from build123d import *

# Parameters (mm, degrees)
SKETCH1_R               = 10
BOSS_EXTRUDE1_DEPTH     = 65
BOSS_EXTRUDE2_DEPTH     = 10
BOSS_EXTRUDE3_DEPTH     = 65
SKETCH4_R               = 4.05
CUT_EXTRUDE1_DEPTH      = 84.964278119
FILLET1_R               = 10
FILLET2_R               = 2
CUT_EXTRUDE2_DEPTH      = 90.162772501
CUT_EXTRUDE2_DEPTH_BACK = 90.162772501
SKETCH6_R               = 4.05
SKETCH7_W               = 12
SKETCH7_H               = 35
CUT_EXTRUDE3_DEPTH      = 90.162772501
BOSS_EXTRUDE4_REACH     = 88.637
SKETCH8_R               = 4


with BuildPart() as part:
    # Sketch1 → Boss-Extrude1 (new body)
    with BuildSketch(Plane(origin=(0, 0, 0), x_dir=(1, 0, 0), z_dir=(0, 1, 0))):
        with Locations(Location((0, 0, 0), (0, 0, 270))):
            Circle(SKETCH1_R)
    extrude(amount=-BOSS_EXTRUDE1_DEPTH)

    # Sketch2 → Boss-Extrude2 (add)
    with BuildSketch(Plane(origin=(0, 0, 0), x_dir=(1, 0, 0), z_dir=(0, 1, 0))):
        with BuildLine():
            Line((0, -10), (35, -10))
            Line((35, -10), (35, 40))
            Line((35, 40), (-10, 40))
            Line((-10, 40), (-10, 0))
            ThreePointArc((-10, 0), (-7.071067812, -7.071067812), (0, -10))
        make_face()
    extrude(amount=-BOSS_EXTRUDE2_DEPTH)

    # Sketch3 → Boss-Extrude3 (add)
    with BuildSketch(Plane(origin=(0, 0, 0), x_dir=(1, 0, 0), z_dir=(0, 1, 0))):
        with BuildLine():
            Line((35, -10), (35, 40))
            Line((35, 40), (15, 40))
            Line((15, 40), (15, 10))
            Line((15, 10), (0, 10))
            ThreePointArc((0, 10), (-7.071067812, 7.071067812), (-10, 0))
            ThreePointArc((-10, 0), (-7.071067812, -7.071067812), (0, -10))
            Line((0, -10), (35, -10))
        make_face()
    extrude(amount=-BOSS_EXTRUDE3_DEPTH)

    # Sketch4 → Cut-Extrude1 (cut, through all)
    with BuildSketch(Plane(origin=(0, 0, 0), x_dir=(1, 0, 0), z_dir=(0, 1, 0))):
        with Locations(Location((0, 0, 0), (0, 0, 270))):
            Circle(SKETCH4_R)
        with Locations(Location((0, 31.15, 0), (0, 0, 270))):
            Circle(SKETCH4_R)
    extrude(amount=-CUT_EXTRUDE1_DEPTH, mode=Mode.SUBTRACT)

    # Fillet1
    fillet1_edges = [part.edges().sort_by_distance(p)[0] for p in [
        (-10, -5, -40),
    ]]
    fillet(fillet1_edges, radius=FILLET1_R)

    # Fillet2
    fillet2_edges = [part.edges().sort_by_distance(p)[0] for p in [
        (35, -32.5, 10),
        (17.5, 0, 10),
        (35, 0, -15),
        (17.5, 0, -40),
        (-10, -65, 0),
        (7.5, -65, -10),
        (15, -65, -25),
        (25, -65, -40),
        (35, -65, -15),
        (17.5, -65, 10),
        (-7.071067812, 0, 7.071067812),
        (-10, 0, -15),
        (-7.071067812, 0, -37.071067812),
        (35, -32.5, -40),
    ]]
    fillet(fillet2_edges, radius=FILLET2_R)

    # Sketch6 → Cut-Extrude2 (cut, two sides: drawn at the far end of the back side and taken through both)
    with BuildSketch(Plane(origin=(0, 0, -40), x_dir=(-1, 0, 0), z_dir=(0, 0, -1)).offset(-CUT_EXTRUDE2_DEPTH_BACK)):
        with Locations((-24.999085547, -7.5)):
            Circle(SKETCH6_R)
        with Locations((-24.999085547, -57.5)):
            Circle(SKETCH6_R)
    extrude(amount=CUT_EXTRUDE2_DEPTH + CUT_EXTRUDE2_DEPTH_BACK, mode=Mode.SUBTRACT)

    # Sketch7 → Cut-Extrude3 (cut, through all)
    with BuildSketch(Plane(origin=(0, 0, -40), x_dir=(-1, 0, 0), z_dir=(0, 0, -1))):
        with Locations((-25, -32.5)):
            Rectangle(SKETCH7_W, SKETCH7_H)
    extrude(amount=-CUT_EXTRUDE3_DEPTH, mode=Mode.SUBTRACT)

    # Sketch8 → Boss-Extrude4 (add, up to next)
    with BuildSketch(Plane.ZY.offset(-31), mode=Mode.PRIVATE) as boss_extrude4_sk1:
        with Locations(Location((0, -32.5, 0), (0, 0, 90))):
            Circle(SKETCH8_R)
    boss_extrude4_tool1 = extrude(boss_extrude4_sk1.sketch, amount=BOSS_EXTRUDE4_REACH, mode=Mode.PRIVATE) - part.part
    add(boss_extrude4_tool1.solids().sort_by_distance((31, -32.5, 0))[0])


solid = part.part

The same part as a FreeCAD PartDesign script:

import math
import FreeCAD as App
import Part
import Sketcher

V = App.Vector
Q = App.Units.Quantity


def edges_at(feature, points):
    """Names of the edges that pass closest to the given points."""
    edges = feature.Shape.Edges
    near = lambda p: min(range(len(edges)), key=lambda i: edges[i].distToShape(Part.Vertex(*p))[0])
    return sorted({f"Edge{near(p) + 1}" for p in points})


def add_polygon(sketch, points):
    """Adds a closed chain of lines whose ends are joined by coincident constraints."""
    first, n = sketch.GeometryCount, len(points)
    for a, b in zip(points, points[1:] + points[:1]):
        sketch.addGeometry(Part.LineSegment(App.Vector(*a, 0), App.Vector(*b, 0)), False)
    for i in range(n):
        sketch.addConstraint(Sketcher.Constraint("Coincident", first + i, 2, first + (i + 1) % n, 1))

doc = App.newDocument("Part")
body = doc.addObject("PartDesign::Body", "Body")

sketch1 = doc.addObject("Sketcher::SketchObject", "Sketch")
body.addObject(sketch1)
sketch1.AttachmentSupport = (doc.XZ_Plane, [""])
sketch1.MapMode = "FlatFace"
sketch1.addGeometry(Part.Circle(V(0, 0, 0), V(0, 0, 1), 10), False)
sketch1.addConstraint(Sketcher.Constraint("Coincident", 0, 3, -1, 1))
sketch1.addConstraint(Sketcher.Constraint("Diameter", 0, Q("20 mm")))
pad1 = doc.addObject("PartDesign::Pad", "Pad")
body.addObject(pad1)
pad1.Profile = sketch1
pad1.Length = 65

sketch2 = doc.addObject("Sketcher::SketchObject", "Sketch001")
body.addObject(sketch2)
sketch2.AttachmentSupport = (doc.XZ_Plane, [""])
sketch2.MapMode = "FlatFace"
sketch2.addGeometry(Part.LineSegment(V(0, 10, 0), V(35, 10, 0)), False)
sketch2.addGeometry(Part.LineSegment(V(35, 10, 0), V(35, -40, 0)), False)
sketch2.addGeometry(Part.LineSegment(V(35, -40, 0), V(-10, -40, 0)), False)
sketch2.addGeometry(Part.LineSegment(V(-10, -40, 0), V(-10, 0, 0)), False)
sketch2.addGeometry(Part.ArcOfCircle(Part.Circle(V(0, 0, 0), V(0, 0, 1), 10), math.radians(90), math.radians(180)), False)
sketch2.addConstraint(Sketcher.Constraint("Coincident", 0, 2, 1, 1))
sketch2.addConstraint(Sketcher.Constraint("Coincident", 1, 2, 2, 1))
sketch2.addConstraint(Sketcher.Constraint("Coincident", 2, 2, 3, 1))
sketch2.addConstraint(Sketcher.Constraint("Tangent", 3, 2, 4, 2))
sketch2.addConstraint(Sketcher.Constraint("Tangent", 4, 1, 0, 1))
sketch2.addConstraint(Sketcher.Constraint("Horizontal", 0))
sketch2.addConstraint(Sketcher.Constraint("Vertical", 1))
sketch2.addConstraint(Sketcher.Constraint("Horizontal", 2))
sketch2.addConstraint(Sketcher.Constraint("Vertical", 3))
sketch2.addConstraint(Sketcher.Constraint("Coincident", 4, 3, -1, 1))
sketch2.addConstraint(Sketcher.Constraint("Radius", 4, Q("10 mm")))
sketch2.addConstraint(Sketcher.Constraint("DistanceX", 0, 1, 0, 2, Q("35 mm")))
sketch2.addConstraint(Sketcher.Constraint("DistanceY", 1, 2, 1, 1, Q("50 mm")))
pad2 = doc.addObject("PartDesign::Pad", "Pad001")
body.addObject(pad2)
pad2.Profile = sketch2
pad2.Length = 10

sketch3 = doc.addObject("Sketcher::SketchObject", "Sketch002")
body.addObject(sketch3)
sketch3.AttachmentSupport = (doc.XZ_Plane, [""])
sketch3.MapMode = "FlatFace"
sketch3.addGeometry(Part.LineSegment(V(35, 10, 0), V(35, -40, 0)), False)
sketch3.addGeometry(Part.LineSegment(V(35, -40, 0), V(15, -40, 0)), False)
sketch3.addGeometry(Part.LineSegment(V(15, -40, 0), V(15, -10, 0)), False)
sketch3.addGeometry(Part.LineSegment(V(15, -10, 0), V(0, -10, 0)), False)
sketch3.addGeometry(Part.ArcOfCircle(Part.Circle(V(0, 0, 0), V(0, 0, 1), 10), math.radians(180), math.radians(270)), False)
sketch3.addGeometry(Part.ArcOfCircle(Part.Circle(V(0, 0, 0), V(0, 0, 1), 10), math.radians(90), math.radians(180)), False)
sketch3.addGeometry(Part.LineSegment(V(0, 10, 0), V(35, 10, 0)), False)
sketch3.addConstraint(Sketcher.Constraint("Coincident", 0, 2, 1, 1))
sketch3.addConstraint(Sketcher.Constraint("Coincident", 1, 2, 2, 1))
sketch3.addConstraint(Sketcher.Constraint("Coincident", 2, 2, 3, 1))
sketch3.addConstraint(Sketcher.Constraint("Tangent", 3, 2, 4, 2))
sketch3.addConstraint(Sketcher.Constraint("Tangent", 4, 1, 5, 2))
sketch3.addConstraint(Sketcher.Constraint("Tangent", 5, 1, 6, 1))
sketch3.addConstraint(Sketcher.Constraint("Coincident", 6, 2, 0, 1))
sketch3.addConstraint(Sketcher.Constraint("Vertical", 0))
sketch3.addConstraint(Sketcher.Constraint("Horizontal", 1))
sketch3.addConstraint(Sketcher.Constraint("Vertical", 2))
sketch3.addConstraint(Sketcher.Constraint("Horizontal", 3))
sketch3.addConstraint(Sketcher.Constraint("Horizontal", 6))
sketch3.addConstraint(Sketcher.Constraint("Coincident", 4, 3, -1, 1))
sketch3.addConstraint(Sketcher.Constraint("Equal", 4, 5))
sketch3.addConstraint(Sketcher.Constraint("PointOnObject", 4, 1, -1))
sketch3.addConstraint(Sketcher.Constraint("Radius", 4, Q("10 mm")))
sketch3.addConstraint(Sketcher.Constraint("DistanceX", 1, 2, 1, 1, Q("20 mm")))
sketch3.addConstraint(Sketcher.Constraint("DistanceX", 3, 2, 3, 1, Q("15 mm")))
sketch3.addConstraint(Sketcher.Constraint("DistanceY", 0, 2, 0, 1, Q("50 mm")))
pad3 = doc.addObject("PartDesign::Pad", "Pad002")
body.addObject(pad3)
pad3.Profile = sketch3
pad3.Length = 65

sketch4 = doc.addObject("Sketcher::SketchObject", "Sketch003")
body.addObject(sketch4)
sketch4.AttachmentSupport = (doc.XZ_Plane, [""])
sketch4.MapMode = "FlatFace"
sketch4.addGeometry(Part.Circle(V(0, 0, 0), V(0, 0, 1), 4), False)
sketch4.addGeometry(Part.Circle(V(0, -31.1, 0), V(0, 0, 1), 4), False)
sketch4.addConstraint(Sketcher.Constraint("Coincident", 0, 3, -1, 1))
sketch4.addConstraint(Sketcher.Constraint("Equal", 0, 1))
sketch4.addConstraint(Sketcher.Constraint("PointOnObject", 1, 3, -2))
sketch4.addConstraint(Sketcher.Constraint("Diameter", 0, Q("8.1 mm")))
sketch4.addConstraint(Sketcher.Constraint("DistanceY", 1, 3, -1, 1, Q("31.15 mm")))
pocket1 = doc.addObject("PartDesign::Pocket", "Pocket")
body.addObject(pocket1)
pocket1.Profile = sketch4
pocket1.Type = "ThroughAll"
pocket1.Reversed = True
doc.recompute()

fillet = doc.addObject("PartDesign::Fillet", "Fillet")
body.addObject(fillet)
fillet.Base = (pocket1, edges_at(pocket1, [(-10, -5, -40)]))
fillet.Radius = 10
doc.recompute()

fillet2 = doc.addObject("PartDesign::Fillet", "Fillet001")
body.addObject(fillet2)
fillet2.Base = (fillet, edges_at(fillet, [
    (35, -32.5, 10),
    (17.5, 0, 10),
    (35, 0, -15),
    (17.5, 0, -40),
    (-7.071, -65, -7.071),
    (7.5, -65, -10),
    (15, -65, -25),
    (25, -65, -40),
    (35, -65, -15),
    (17.5, -65, 10),
    (-7.071, 0, 7.071),
    (-10, 0, -15),
    (-7.071, 0, -37.071),
    (35, -32.5, -40),
]))
fillet2.Radius = 2

sketch5 = doc.addObject("Sketcher::SketchObject", "Sketch004")
body.addObject(sketch5)
sketch5.AttachmentSupport = (doc.XY_Plane, [""])
sketch5.MapMode = "FlatFace"
sketch5.AttachmentOffset = App.Placement(V(0, 0, -40), App.Rotation())
sketch5.addGeometry(Part.Circle(V(25, -7.5, 0), V(0, 0, 1), 4), False)
sketch5.addGeometry(Part.Circle(V(25, -57.5, 0), V(0, 0, 1), 4), False)
sketch5.addConstraint(Sketcher.Constraint("Equal", 0, 1))
sketch5.addConstraint(Sketcher.Constraint("Vertical", 0, 3, 1, 3))
sketch5.addConstraint(Sketcher.Constraint("Diameter", 0, Q("8.1 mm")))
sketch5.addConstraint(Sketcher.Constraint("DistanceY", 1, 3, 0, 3, Q("50 mm")))
sketch5.addConstraint(Sketcher.Constraint("DistanceY", 0, 3, -1, 1, Q("7.5 mm")))
sketch5.addConstraint(Sketcher.Constraint("DistanceX", -1, 1, 0, 3, Q("24.999086 mm")))
pocket2 = doc.addObject("PartDesign::Pocket", "Pocket001")
body.addObject(pocket2)
pocket2.Profile = sketch5
pocket2.Type = "ThroughAll"
pocket2.Midplane = True

sketch6 = doc.addObject("Sketcher::SketchObject", "Sketch005")
body.addObject(sketch6)
sketch6.AttachmentSupport = (doc.XY_Plane, [""])
sketch6.MapMode = "FlatFace"
sketch6.AttachmentOffset = App.Placement(V(0, 0, -40), App.Rotation())
add_polygon(sketch6, [(31, -15), (31, -50), (19, -50), (19, -15)])
sketch6.addConstraint(Sketcher.Constraint("Vertical", 0))
sketch6.addConstraint(Sketcher.Constraint("Horizontal", 1))
sketch6.addConstraint(Sketcher.Constraint("Vertical", 2))
sketch6.addConstraint(Sketcher.Constraint("Horizontal", 3))
sketch6.addConstraint(Sketcher.Constraint("DistanceX", 1, 2, 1, 1, Q("12 mm")))
sketch6.addConstraint(Sketcher.Constraint("DistanceY", 0, 2, 0, 1, Q("35 mm")))
sketch6.addConstraint(Sketcher.Constraint("DistanceX", -1, 1, 0, 2, Q("31 mm")))
sketch6.addConstraint(Sketcher.Constraint("DistanceY", 0, 2, -1, 1, Q("50 mm")))
pocket3 = doc.addObject("PartDesign::Pocket", "Pocket002")
body.addObject(pocket3)
pocket3.Profile = sketch6
pocket3.Type = "ThroughAll"
pocket3.Reversed = True

sketch7 = doc.addObject("Sketcher::SketchObject", "Sketch006")
body.addObject(sketch7)
sketch7.AttachmentSupport = (doc.YZ_Plane, [""])
sketch7.MapMode = "FlatFace"
sketch7.AttachmentOffset = App.Placement(V(0, 0, 31), App.Rotation())
sketch7.addGeometry(Part.Circle(V(-32.5, 0, 0), V(0, 0, 1), 4), False)
sketch7.addConstraint(Sketcher.Constraint("PointOnObject", 0, 3, -1))
sketch7.addConstraint(Sketcher.Constraint("Diameter", 0, Q("8 mm")))
sketch7.addConstraint(Sketcher.Constraint("DistanceX", 0, 3, -1, 1, Q("32.5 mm")))
pad4 = doc.addObject("PartDesign::Pad", "Pad003")
body.addObject(pad4)
pad4.Profile = sketch7
pad4.Type = "UpToFirst"
pad4.Reversed = True

doc.recompute()
